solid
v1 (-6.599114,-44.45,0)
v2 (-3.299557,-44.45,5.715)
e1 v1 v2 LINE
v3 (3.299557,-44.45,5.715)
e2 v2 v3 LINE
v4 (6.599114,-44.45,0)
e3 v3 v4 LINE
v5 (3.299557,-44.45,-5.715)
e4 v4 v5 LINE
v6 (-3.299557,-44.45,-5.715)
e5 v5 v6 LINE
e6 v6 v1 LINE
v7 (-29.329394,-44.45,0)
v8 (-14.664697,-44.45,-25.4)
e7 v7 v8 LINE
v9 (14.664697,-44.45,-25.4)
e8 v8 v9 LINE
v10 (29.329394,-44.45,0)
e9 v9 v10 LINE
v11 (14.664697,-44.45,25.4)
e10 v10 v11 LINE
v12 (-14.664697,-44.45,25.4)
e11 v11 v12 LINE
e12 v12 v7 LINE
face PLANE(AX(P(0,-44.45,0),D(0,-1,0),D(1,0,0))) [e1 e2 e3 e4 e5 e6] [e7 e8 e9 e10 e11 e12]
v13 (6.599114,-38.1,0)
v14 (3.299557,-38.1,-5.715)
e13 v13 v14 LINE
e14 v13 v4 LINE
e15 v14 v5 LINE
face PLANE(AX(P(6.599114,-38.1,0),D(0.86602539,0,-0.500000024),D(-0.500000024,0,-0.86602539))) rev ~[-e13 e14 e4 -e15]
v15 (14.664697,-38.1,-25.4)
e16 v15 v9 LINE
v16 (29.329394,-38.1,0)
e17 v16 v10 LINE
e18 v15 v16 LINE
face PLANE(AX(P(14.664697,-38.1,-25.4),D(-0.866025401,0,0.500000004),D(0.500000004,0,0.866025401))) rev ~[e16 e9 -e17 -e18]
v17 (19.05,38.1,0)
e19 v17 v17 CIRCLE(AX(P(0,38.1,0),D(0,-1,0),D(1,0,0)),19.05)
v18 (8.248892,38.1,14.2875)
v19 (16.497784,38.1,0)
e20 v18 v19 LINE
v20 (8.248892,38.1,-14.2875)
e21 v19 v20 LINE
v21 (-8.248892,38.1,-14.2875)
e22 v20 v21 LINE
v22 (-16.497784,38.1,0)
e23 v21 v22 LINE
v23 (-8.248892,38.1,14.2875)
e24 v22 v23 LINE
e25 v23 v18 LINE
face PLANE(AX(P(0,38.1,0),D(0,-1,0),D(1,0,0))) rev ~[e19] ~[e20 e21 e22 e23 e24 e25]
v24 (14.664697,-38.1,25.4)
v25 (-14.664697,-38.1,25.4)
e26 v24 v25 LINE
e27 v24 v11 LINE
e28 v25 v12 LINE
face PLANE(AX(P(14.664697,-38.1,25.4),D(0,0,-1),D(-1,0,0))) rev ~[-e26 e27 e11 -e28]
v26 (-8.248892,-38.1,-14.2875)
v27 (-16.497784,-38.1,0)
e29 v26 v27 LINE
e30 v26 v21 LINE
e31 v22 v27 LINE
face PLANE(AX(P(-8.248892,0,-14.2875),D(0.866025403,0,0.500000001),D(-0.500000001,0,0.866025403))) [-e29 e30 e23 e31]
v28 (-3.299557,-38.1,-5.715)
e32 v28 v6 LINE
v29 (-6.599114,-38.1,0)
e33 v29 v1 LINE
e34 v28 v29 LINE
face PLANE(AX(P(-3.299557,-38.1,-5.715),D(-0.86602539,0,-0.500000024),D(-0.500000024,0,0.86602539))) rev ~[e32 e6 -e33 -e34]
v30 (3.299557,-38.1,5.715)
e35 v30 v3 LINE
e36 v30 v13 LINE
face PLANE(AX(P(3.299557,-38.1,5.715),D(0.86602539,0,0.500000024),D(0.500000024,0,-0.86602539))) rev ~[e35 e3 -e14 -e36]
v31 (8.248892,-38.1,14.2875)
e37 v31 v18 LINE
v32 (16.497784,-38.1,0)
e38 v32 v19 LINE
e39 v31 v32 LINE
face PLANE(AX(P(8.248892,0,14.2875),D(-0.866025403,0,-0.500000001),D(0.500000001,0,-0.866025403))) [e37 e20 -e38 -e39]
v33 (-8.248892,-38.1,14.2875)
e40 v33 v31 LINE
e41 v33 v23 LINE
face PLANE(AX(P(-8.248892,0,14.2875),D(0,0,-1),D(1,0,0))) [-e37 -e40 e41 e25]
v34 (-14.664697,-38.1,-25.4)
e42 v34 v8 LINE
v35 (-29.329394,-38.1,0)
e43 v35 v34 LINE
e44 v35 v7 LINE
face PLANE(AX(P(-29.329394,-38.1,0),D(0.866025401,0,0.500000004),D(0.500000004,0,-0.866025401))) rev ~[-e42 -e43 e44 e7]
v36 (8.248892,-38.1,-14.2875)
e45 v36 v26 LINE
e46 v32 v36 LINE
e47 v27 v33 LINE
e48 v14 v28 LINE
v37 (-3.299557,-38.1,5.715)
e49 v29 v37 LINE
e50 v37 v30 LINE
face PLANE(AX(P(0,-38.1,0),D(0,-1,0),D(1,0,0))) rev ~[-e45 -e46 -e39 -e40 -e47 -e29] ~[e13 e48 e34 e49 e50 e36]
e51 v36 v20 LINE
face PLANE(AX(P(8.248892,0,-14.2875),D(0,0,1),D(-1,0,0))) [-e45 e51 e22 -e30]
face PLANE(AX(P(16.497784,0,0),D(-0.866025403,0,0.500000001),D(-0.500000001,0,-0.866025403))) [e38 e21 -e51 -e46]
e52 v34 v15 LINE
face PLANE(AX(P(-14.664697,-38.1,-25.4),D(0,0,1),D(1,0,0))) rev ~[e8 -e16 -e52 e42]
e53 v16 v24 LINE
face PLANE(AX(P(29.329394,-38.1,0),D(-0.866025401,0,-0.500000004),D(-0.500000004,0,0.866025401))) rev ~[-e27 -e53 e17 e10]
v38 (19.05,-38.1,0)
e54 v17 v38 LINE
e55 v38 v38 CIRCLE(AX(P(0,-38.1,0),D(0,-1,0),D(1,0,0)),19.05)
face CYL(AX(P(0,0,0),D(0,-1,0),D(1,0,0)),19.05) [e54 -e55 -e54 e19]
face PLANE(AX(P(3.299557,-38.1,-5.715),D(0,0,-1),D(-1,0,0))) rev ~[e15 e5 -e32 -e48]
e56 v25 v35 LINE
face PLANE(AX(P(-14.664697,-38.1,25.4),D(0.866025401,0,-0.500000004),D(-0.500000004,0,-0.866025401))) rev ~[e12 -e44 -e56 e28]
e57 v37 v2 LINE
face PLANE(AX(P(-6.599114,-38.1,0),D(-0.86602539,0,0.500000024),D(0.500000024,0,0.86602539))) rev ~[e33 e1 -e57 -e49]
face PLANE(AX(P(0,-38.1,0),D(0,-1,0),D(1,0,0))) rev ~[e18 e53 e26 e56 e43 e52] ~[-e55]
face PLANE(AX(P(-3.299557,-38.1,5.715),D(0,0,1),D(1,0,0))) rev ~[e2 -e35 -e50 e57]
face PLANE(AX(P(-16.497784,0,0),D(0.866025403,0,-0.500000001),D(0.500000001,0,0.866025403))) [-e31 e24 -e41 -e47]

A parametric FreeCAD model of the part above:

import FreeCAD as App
import Part
import Sketcher
Q = App.Units.Quantity

doc = App.newDocument("Part")
body = doc.addObject("PartDesign::Body", "Body")

# Sketch on XZ plane
sketch1 = body.newObject("Sketcher::SketchObject", "Sketch")
sketch1.AttachmentSupport = (doc.getObject("XZ_Plane"), [""])
sketch1.MapMode = "FlatFace"
sketch1.addGeometry(Part.Circle(App.Vector(0, 0, 0), App.Vector(0, 0, 1), 19), False)
sketch1.addGeometry(Part.LineSegment(App.Vector(-8, -14, 0), App.Vector(-16, 0, 0)), False)
sketch1.addGeometry(Part.LineSegment(App.Vector(-16, 0, 0), App.Vector(-8, 14, 0)), False)
sketch1.addGeometry(Part.LineSegment(App.Vector(-8, 14, 0), App.Vector(8, 14, 0)), False)
sketch1.addGeometry(Part.LineSegment(App.Vector(8, 14, 0), App.Vector(16, 0, 0)), False)
sketch1.addGeometry(Part.LineSegment(App.Vector(16, 0, 0), App.Vector(8, -14, 0)), False)
sketch1.addGeometry(Part.LineSegment(App.Vector(8, -14, 0), App.Vector(-8, -14, 0)), False)
sketch1.addConstraint(Sketcher.Constraint("Coincident", 1, 2, 2, 1))
sketch1.addConstraint(Sketcher.Constraint("Coincident", 2, 2, 3, 1))
sketch1.addConstraint(Sketcher.Constraint("Coincident", 3, 2, 4, 1))
sketch1.addConstraint(Sketcher.Constraint("Coincident", 4, 2, 5, 1))
sketch1.addConstraint(Sketcher.Constraint("Coincident", 5, 2, 6, 1))
sketch1.addConstraint(Sketcher.Constraint("Coincident", 6, 2, 1, 1))
sketch1.addConstraint(Sketcher.Constraint("Horizontal", 3))
sketch1.addConstraint(Sketcher.Constraint("Horizontal", 6))
sketch1.addConstraint(Sketcher.Constraint("Coincident", 0, 3, -1, 1))
sketch1.addConstraint(Sketcher.Constraint("Symmetric", 1, 2, 4, 2, -1, 1))
sketch1.addConstraint(Sketcher.Constraint("Symmetric", 2, 2, 5, 2, -1, 1))
sketch1.addConstraint(Sketcher.Constraint("PointOnObject", 1, 2, -1))
sketch1.addConstraint(Sketcher.Constraint("Parallel", 1, 4))
sketch1.addConstraint(Sketcher.Constraint("Vertical", 3, 2, 5, 2))
sketch1.addConstraint(Sketcher.Constraint("Diameter", 0, Q("1.5 in")))
sketch1.addConstraint(Sketcher.Constraint("Angle", 1, Q("120 deg")))
sketch1.addConstraint(Sketcher.Constraint("DistanceY", -1, 1, 2, 2, Q("0.5625 in")))
sketch1.addConstraint(Sketcher.Constraint("DistanceX", 3, 1, 3, 2, Q("16.497784 mm")))
pad1 = body.newObject("PartDesign::Pad", "Pad")
pad1.Profile = sketch1
pad1.Length = Q("3 in")
pad1.Midplane = True

# Sketch on XZ plane
sketch2 = body.newObject("Sketcher::SketchObject", "Sketch001")
sketch2.AttachmentSupport = (doc.getObject("XZ_Plane"), [""])
sketch2.MapMode = "FlatFace"
sketch2.AttachmentOffset = App.Placement(App.Vector(0, 0, 1.5 * 25.4), App.Rotation())
sketch2.addGeometry(Part.LineSegment(App.Vector(15, 25, 0), App.Vector(-15, 25, 0)), False)
sketch2.addGeometry(Part.LineSegment(App.Vector(-15, 25, 0), App.Vector(-29, 0, 0)), False)
sketch2.addGeometry(Part.LineSegment(App.Vector(-29, 0, 0), App.Vector(-15, -25, 0)), False)
sketch2.addGeometry(Part.LineSegment(App.Vector(-15, -25, 0), App.Vector(15, -25, 0)), False)
sketch2.addGeometry(Part.LineSegment(App.Vector(15, -25, 0), App.Vector(29, 0, 0)), False)
sketch2.addGeometry(Part.LineSegment(App.Vector(29, 0, 0), App.Vector(15, 25, 0)), False)
sketch2.addGeometry(Part.LineSegment(App.Vector(-3, -6, 0), App.Vector(-7, 0, 0)), False)
sketch2.addGeometry(Part.LineSegment(App.Vector(-7, 0, 0), App.Vector(-3, 6, 0)), False)
sketch2.addGeometry(Part.LineSegment(App.Vector(-3, 6, 0), App.Vector(3, 6, 0)), False)
sketch2.addGeometry(Part.LineSegment(App.Vector(3, 6, 0), App.Vector(7, 0, 0)), False)
sketch2.addGeometry(Part.LineSegment(App.Vector(7, 0, 0), App.Vector(3, -6, 0)), False)
sketch2.addGeometry(Part.LineSegment(App.Vector(3, -6, 0), App.Vector(-3, -6, 0)), False)
sketch2.addConstraint(Sketcher.Constraint("Coincident", 0, 2, 1, 1))
sketch2.addConstraint(Sketcher.Constraint("Coincident", 1, 2, 2, 1))
sketch2.addConstraint(Sketcher.Constraint("Coincident", 2, 2, 3, 1))
sketch2.addConstraint(Sketcher.Constraint("Coincident", 3, 2, 4, 1))
sketch2.addConstraint(Sketcher.Constraint("Coincident", 4, 2, 5, 1))
sketch2.addConstraint(Sketcher.Constraint("Coincident", 5, 2, 0, 1))
sketch2.addConstraint(Sketcher.Constraint("Coincident", 6, 2, 7, 1))
sketch2.addConstraint(Sketcher.Constraint("Coincident", 7, 2, 8, 1))
sketch2.addConstraint(Sketcher.Constraint("Coincident", 8, 2, 9, 1))
sketch2.addConstraint(Sketcher.Constraint("Coincident", 9, 2, 10, 1))
sketch2.addConstraint(Sketcher.Constraint("Coincident", 10, 2, 11, 1))
sketch2.addConstraint(Sketcher.Constraint("Coincident", 11, 2, 6, 1))
sketch2.addConstraint(Sketcher.Constraint("Horizontal", 0))
sketch2.addConstraint(Sketcher.Constraint("Horizontal", 3))
sketch2.addConstraint(Sketcher.Constraint("Horizontal", 8))
sketch2.addConstraint(Sketcher.Constraint("Horizontal", 11))
sketch2.addConstraint(Sketcher.Constraint("Symmetric", 0, 2, 3, 2, -1, 1))
sketch2.addConstraint(Sketcher.Constraint("Symmetric", 1, 2, 4, 2, -1, 1))
sketch2.addConstraint(Sketcher.Constraint("Symmetric", 6, 2, 9, 2, -1, 1))
sketch2.addConstraint(Sketcher.Constraint("Symmetric", 7, 2, 10, 2, -1, 1))
sketch2.addConstraint(Sketcher.Constraint("PointOnObject", 1, 2, -1))
sketch2.addConstraint(Sketcher.Constraint("PointOnObject", 6, 2, -1))
sketch2.addConstraint(Sketcher.Constraint("Parallel", 2, 5))
sketch2.addConstraint(Sketcher.Constraint("Parallel", 5, 6))
sketch2.addConstraint(Sketcher.Constraint("Parallel", 4, 7))
sketch2.addConstraint(Sketcher.Constraint("Parallel", 6, 9))
sketch2.addConstraint(Sketcher.Constraint("Vertical", 0, 2, 2, 2))
sketch2.addConstraint(Sketcher.Constraint("DistanceY", -1, 1, 0, 2, Q("1 in")))
sketch2.addConstraint(Sketcher.Constraint("Angle", 1, Q("-120 deg")))
sketch2.addConstraint(Sketcher.Constraint("DistanceY", 10, 2, 8, 2, Q("0.45 in")))
sketch2.addConstraint(Sketcher.Constraint("DistanceX", 0, 2, 0, 1, Q("29.329394 mm")))
sketch2.addConstraint(Sketcher.Constraint("DistanceX", 8, 1, 8, 2, Q("6.599114 mm")))
pad2 = body.newObject("PartDesign::Pad", "Pad001")
pad2.Profile = sketch2
pad2.Length = Q("0.25 in")

doc.recompute()
